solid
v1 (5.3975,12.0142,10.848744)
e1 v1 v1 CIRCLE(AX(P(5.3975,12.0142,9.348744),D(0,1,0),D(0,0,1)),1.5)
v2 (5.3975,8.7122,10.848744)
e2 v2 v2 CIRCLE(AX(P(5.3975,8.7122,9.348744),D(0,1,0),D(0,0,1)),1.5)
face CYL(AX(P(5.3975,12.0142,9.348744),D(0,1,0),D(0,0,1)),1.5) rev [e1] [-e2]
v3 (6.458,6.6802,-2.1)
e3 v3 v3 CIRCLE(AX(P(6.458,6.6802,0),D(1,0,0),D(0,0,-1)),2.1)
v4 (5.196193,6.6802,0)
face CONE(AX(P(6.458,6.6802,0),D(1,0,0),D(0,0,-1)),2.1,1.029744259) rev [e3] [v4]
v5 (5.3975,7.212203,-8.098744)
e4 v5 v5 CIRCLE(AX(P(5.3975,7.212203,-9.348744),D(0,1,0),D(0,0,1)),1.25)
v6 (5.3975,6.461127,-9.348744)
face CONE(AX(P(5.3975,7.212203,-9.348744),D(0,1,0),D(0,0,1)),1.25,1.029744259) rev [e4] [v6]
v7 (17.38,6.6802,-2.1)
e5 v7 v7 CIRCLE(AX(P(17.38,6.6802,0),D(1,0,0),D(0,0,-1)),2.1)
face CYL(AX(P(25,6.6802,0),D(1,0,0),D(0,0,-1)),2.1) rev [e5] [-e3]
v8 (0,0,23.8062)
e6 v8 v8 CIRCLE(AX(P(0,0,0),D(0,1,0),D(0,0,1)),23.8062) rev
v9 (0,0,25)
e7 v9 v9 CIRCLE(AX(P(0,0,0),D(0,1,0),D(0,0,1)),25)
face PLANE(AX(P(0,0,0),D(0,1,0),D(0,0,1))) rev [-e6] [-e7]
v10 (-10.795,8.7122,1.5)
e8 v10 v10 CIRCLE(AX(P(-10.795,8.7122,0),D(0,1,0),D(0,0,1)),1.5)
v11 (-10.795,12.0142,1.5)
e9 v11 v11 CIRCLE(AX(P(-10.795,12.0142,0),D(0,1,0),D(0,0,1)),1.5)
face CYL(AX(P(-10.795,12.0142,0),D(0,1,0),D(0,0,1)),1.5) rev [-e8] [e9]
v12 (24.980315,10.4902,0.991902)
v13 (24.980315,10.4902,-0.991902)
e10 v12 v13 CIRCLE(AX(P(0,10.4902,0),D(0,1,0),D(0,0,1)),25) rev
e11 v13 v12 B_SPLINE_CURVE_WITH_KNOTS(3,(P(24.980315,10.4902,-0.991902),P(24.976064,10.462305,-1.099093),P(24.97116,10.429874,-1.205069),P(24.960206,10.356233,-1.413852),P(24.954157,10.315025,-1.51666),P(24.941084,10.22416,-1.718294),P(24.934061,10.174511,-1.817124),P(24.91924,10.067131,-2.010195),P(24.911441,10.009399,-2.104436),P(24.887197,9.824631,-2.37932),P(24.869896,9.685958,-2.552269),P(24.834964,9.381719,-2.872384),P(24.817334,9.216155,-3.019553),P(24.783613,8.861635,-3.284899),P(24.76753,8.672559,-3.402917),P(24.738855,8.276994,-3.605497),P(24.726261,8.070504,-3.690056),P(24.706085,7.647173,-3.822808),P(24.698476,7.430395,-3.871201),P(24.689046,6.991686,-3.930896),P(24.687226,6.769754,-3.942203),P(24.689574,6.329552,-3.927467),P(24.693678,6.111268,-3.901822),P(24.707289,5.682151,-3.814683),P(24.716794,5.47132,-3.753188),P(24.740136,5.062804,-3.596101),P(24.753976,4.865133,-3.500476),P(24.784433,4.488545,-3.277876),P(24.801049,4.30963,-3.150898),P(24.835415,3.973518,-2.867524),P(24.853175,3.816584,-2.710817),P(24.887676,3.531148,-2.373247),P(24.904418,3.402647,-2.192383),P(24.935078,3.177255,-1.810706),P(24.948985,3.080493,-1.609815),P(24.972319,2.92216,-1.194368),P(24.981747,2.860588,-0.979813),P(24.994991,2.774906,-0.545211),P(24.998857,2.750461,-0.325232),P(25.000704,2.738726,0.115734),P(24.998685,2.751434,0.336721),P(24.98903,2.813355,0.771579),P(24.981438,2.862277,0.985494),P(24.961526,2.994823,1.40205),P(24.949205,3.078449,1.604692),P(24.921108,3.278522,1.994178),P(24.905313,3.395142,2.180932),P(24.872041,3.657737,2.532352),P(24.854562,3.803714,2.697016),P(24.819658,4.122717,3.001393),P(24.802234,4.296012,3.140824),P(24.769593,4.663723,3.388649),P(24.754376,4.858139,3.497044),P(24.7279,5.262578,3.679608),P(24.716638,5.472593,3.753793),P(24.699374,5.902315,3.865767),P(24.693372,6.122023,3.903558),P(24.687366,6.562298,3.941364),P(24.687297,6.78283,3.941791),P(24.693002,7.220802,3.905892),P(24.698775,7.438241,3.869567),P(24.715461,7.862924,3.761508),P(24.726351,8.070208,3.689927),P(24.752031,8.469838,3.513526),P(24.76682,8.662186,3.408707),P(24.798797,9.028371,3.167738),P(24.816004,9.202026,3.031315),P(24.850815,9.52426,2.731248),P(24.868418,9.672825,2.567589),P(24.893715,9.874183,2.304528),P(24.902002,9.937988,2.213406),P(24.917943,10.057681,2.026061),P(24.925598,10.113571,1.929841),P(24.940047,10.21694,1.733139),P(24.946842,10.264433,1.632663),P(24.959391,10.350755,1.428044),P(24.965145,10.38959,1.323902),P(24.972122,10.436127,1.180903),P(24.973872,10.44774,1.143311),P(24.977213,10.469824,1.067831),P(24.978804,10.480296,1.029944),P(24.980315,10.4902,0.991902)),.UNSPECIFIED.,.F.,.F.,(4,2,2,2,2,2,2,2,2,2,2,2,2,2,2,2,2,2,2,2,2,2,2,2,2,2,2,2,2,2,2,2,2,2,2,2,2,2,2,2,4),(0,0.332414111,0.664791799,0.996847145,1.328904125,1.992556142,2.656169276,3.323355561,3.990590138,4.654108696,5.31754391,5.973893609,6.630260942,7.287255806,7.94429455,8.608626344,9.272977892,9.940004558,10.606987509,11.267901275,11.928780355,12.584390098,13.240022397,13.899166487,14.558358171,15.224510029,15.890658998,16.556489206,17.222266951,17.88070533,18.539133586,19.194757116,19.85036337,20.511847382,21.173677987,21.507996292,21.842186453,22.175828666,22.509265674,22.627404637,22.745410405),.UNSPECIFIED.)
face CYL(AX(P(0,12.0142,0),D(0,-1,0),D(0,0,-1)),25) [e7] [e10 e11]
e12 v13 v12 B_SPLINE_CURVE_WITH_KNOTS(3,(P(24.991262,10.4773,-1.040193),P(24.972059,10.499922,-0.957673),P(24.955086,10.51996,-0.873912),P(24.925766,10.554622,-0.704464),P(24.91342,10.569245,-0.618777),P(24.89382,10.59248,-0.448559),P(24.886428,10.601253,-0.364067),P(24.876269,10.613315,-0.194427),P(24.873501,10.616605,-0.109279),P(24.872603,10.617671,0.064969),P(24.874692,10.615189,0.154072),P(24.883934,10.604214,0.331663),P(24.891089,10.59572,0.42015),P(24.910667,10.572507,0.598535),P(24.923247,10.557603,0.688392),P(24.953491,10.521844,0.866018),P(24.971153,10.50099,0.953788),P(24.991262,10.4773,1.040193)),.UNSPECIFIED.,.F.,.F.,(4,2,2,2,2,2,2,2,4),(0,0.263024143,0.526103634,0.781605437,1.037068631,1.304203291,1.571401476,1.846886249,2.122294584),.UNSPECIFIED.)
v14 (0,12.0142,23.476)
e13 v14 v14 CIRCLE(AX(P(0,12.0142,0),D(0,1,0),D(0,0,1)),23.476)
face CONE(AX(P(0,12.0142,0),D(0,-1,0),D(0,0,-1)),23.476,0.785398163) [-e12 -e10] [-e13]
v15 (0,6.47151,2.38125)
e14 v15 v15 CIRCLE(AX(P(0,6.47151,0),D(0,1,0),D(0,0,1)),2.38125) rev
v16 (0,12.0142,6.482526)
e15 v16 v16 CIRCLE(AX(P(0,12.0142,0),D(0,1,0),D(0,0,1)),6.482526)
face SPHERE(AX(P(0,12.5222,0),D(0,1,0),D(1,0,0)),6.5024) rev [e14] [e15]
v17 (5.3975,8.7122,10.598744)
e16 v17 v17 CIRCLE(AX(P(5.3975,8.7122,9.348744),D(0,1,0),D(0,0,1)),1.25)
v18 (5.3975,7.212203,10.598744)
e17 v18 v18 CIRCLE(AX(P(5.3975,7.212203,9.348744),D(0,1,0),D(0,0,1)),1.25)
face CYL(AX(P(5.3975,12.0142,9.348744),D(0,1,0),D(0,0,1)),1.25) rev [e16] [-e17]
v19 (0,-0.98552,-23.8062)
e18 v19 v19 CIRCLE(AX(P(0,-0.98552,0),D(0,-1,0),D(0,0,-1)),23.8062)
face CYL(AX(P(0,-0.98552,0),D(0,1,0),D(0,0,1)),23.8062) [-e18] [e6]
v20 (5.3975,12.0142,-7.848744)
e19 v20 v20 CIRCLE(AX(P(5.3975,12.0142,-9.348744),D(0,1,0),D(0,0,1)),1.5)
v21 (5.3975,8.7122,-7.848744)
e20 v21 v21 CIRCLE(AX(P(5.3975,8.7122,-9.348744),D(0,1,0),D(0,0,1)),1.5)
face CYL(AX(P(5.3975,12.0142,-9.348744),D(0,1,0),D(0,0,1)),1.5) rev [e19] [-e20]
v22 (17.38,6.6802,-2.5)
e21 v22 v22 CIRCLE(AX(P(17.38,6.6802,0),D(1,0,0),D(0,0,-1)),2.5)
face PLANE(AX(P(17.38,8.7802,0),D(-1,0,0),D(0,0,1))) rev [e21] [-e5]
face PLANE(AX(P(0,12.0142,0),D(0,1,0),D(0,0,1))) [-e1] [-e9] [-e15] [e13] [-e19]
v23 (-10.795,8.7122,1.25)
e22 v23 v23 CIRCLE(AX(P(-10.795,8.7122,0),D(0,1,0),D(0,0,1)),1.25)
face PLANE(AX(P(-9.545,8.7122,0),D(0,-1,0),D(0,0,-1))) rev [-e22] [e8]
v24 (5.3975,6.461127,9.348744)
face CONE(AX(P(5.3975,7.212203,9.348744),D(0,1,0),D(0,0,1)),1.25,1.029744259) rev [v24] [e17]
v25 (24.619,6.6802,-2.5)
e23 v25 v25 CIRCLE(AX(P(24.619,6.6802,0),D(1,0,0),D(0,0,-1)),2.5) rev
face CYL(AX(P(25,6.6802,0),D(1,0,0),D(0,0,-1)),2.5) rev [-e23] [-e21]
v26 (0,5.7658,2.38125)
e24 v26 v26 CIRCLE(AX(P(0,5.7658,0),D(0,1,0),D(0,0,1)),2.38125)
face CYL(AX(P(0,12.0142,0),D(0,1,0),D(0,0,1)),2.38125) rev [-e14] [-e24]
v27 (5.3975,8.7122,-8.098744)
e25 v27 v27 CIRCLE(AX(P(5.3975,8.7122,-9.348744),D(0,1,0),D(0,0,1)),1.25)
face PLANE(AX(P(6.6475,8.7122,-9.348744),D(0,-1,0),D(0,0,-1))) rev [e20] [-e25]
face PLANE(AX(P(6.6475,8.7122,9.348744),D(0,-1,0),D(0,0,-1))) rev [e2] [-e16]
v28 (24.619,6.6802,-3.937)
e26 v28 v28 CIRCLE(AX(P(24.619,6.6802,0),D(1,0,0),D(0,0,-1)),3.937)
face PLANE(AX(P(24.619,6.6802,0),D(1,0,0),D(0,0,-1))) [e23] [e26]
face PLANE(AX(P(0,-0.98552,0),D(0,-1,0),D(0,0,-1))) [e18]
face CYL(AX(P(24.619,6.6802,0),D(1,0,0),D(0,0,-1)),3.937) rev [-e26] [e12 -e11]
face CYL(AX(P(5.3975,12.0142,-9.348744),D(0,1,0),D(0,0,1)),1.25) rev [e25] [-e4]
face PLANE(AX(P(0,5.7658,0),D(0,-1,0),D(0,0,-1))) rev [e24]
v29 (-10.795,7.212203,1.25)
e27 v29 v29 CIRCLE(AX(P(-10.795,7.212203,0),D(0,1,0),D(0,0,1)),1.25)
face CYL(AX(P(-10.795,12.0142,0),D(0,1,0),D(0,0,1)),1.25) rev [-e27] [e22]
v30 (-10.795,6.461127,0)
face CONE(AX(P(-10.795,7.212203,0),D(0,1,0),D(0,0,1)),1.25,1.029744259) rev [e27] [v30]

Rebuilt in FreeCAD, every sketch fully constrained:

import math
import FreeCAD as App
import Part
import Sketcher
from FreeCAD import Vector
Q = App.Units.Quantity


def edges_at(feature, points):
    """Names of the edges that pass closest to the given points."""
    edges = feature.Shape.Edges
    near = lambda p: min(range(len(edges)), key=lambda i: edges[i].distToShape(Part.Vertex(*p))[0])
    return sorted({f"Edge{near(p) + 1}" for p in points})


def add_polygon(sketch, points):
    """Adds a closed chain of lines whose ends are joined by coincident constraints."""
    first, n = sketch.GeometryCount, len(points)
    for a, b in zip(points, points[1:] + points[:1]):
        sketch.addGeometry(Part.LineSegment(App.Vector(*a, 0), App.Vector(*b, 0)), False)
    for i in range(n):
        sketch.addConstraint(Sketcher.Constraint("Coincident", first + i, 2, first + (i + 1) % n, 1))

doc = App.newDocument("Part")
params = doc.addObject("Spreadsheet::Sheet", "Params")
for row, (alias, value) in enumerate([
    ("pad1_length", "0.473 in"),
    ("chamfer_size", "0.06 in"),
    ("sketch2_radius", "0.256 in"),
    ("groove_angle", "360 deg"),
    ("sketch3_diameter", "0.1875 in"),
    ("hole_diameter", "0.1875 in"),
    ("hole_depth", "0.246 in"),
    ("pad2_length", "0.0388 in"),
    ("hole2_diameter", "4.2 mm"),
    ("hole2_depth", "0.73 in"),
    ("hole2_cbore_diameter", "5 mm"),
    ("hole2_cbore_depth", "0.3 in"),
    ("sketch6_width", "0.13 in"),
    ("groove2_angle", "360 deg"),
    ("sketch7_diameter", "0.31 in"),
    ("pocket1_length", "0.015 in"),
], start=1):
    params.set(f"A{row}", alias)
    params.set(f"B{row}", "=" + value)
    params.setAlias(f"B{row}", alias)

body = doc.addObject("PartDesign::Body", "Body")

sketch1 = body.newObject("Sketcher::SketchObject", "Sketch")
sketch1.AttachmentSupport = (doc.getObject("XZ_Plane"), [""])
sketch1.MapMode = "FlatFace"
sketch1.addGeometry(Part.Circle(Vector(0, 0, 0), Vector(0, 0, 1), 25), False)
sketch1.addConstraint(Sketcher.Constraint("Coincident", 0, 3, -1, 1))
sketch1.addConstraint(Sketcher.Constraint("Diameter", 0, 50.0))
pad1 = body.newObject("PartDesign::Pad", "Pad")
pad1.Profile = sketch1
pad1.setExpression("Length", "Params.pad1_length")
pad1.Reversed = True
doc.recompute()

chamfer = body.newObject("PartDesign::Chamfer", "Chamfer")
chamfer.Base = (pad1, edges_at(pad1, [(0, 12.014, -25)]))
chamfer.setExpression("Size", "Params.chamfer_size")

sketch2 = body.newObject("Sketcher::SketchObject", "Sketch001")
sketch2.AttachmentSupport = (doc.getObject("XY_Plane"), [""])
sketch2.MapMode = "FlatFace"
sketch2.addGeometry(Part.LineSegment(Vector(0, 6, 0), Vector(0, 19, 0)), False)
sketch2.addGeometry(Part.ArcOfCircle(Part.Circle(Vector(0, 13, 0), Vector(0, 0, 1), 7), math.radians(90), math.radians(270)), False)
sketch2.addConstraint(Sketcher.Constraint("Coincident", 0, 1, 1, 2))
sketch2.addConstraint(Sketcher.Constraint("Coincident", 1, 1, 0, 2))
sketch2.addConstraint(Sketcher.Constraint("Vertical", 0))
sketch2.addConstraint(Sketcher.Constraint("PointOnObject", 1, 3, -2))
sketch2.addConstraint(Sketcher.Constraint("PointOnObject", 0, 1, -2))
sketch2.addConstraint(Sketcher.Constraint("Radius", 1, Q("0.256 in")))
sketch2.addConstraint(Sketcher.Constraint("DistanceY", -1, 1, 1, 3, Q("0.493 in")))
sketch2.setExpression("Constraints[5]", "Params.sketch2_radius")
groove = body.newObject("PartDesign::Groove", "Groove")
groove.Profile = sketch2
groove.ReferenceAxis = (sketch2, ["V_Axis"])
groove.setExpression("Angle", "Params.groove_angle")

sketch3 = body.newObject("Sketcher::SketchObject", "Sketch002")
sketch3.AttachmentSupport = (doc.getObject("XZ_Plane"), [""])
sketch3.MapMode = "FlatFace"
sketch3.AttachmentOffset = App.Placement(Vector(0, 0, -0.473 * 25.4), App.Rotation())
sketch3.addGeometry(Part.Circle(Vector(0, 0, 0), Vector(0, 0, 1), 2.4), False)
sketch3.addConstraint(Sketcher.Constraint("Coincident", 0, 3, -1, 1))
sketch3.addConstraint(Sketcher.Constraint("Diameter", 0, Q("0.1875 in")))
sketch3.setExpression("Constraints[1]", "Params.sketch3_diameter")
doc.recompute()
hole = body.newObject("PartDesign::Hole", "Hole")
hole.Profile = sketch3
hole.ThreadType = "None"
hole.setExpression("Diameter", "Params.hole_diameter")
hole.DepthType = "Dimension"
hole.setExpression("Depth", "Params.hole_depth")
hole.DrillPoint = "Flat"
hole.Reversed = True

sketch4 = body.newObject("Sketcher::SketchObject", "Sketch003")
sketch4.AttachmentSupport = (doc.getObject("XZ_Plane"), [""])
sketch4.MapMode = "FlatFace"
sketch4.addGeometry(Part.Circle(Vector(0, 0, 0), Vector(0, 0, 1), 24), False)
sketch4.addConstraint(Sketcher.Constraint("Coincident", 0, 3, -1, 1))
sketch4.addConstraint(Sketcher.Constraint("Diameter", 0, 47.6124))
pad2 = body.newObject("PartDesign::Pad", "Pad001")
pad2.Profile = sketch4
pad2.setExpression("Length", "Params.pad2_length")

sketch5 = body.newObject("Sketcher::SketchObject", "Sketch004")
sketch5.AttachmentSupport = (doc.getObject("YZ_Plane"), [""])
sketch5.MapMode = "FlatFace"
sketch5.AttachmentOffset = App.Placement(Vector(0, 0, 25), App.Rotation())
sketch5.addGeometry(Part.Circle(Vector(6.7, 0, 0), Vector(0, 0, 1), 2.1), False)
sketch5.addConstraint(Sketcher.Constraint("PointOnObject", 0, 3, -1))
sketch5.addConstraint(Sketcher.Constraint("Diameter", 0, 4.2))
sketch5.addConstraint(Sketcher.Constraint("DistanceX", -1, 1, 0, 3, Q("0.263 in")))
doc.recompute()
hole2 = body.newObject("PartDesign::Hole", "Hole001")
hole2.Profile = sketch5
hole2.ThreadType = "None"
hole2.setExpression("Diameter", "Params.hole2_diameter")
hole2.DepthType = "Dimension"
hole2.setExpression("Depth", "Params.hole2_depth")
hole2.DrillPoint = "Angled"
hole2.DrillPointAngle = 118
hole2.HoleCutType = "Counterbore"
hole2.setExpression("HoleCutDiameter", "Params.hole2_cbore_diameter")
hole2.setExpression("HoleCutDepth", "Params.hole2_cbore_depth")

sketch6 = body.newObject("Sketcher::SketchObject", "Sketch005")
sketch6.AttachmentSupport = (doc.getObject("YZ_Plane"), [""])
sketch6.MapMode = "FlatFace"
sketch6.AttachmentOffset = App.Placement(Vector(0, 0, -0.425 * 25.4), App.Rotation())
add_polygon(sketch6, [(6.46, 0), (12.01, 0), (12.01, 1.5), (8.71, 1.5), (8.71, 1.25), (7.21, 1.25)])
sketch6.addConstraint(Sketcher.Constraint("Horizontal", 0))
sketch6.addConstraint(Sketcher.Constraint("Vertical", 1))
sketch6.addConstraint(Sketcher.Constraint("Horizontal", 2))
sketch6.addConstraint(Sketcher.Constraint("Vertical", 3))
sketch6.addConstraint(Sketcher.Constraint("Horizontal", 4))
sketch6.addConstraint(Sketcher.Constraint("PointOnObject", 0, 2, -1))
sketch6.addConstraint(Sketcher.Constraint("Angle", 5, Q("-121 deg")))
sketch6.addConstraint(Sketcher.Constraint("DistanceX", 2, 2, 2, 1, Q("0.13 in")))
sketch6.addConstraint(Sketcher.Constraint("DistanceX", -1, 1, 0, 2, Q("0.473 in")))
sketch6.addConstraint(Sketcher.Constraint("DistanceY", 1, 1, 1, 2, 1.5))
sketch6.addConstraint(Sketcher.Constraint("DistanceY", 3, 2, 3, 1, 0.25))
sketch6.addConstraint(Sketcher.Constraint("DistanceX", 0, 1, 0, 2, 5.553073))
sketch6.setExpression("Constraints[13]", "Params.sketch6_width")
groove2 = body.newObject("PartDesign::Groove", "Groove001")
groove2.Profile = sketch6
groove2.ReferenceAxis = (sketch6, ["H_Axis"])
groove2.setExpression("Angle", "Params.groove2_angle")
doc.recompute()

polarpattern = body.newObject("PartDesign::PolarPattern", "PolarPattern")
polarpattern.Originals = [groove2]
polarpattern.Axis = (doc.getObject("Y_Axis"), [""])
polarpattern.Angle = 360
polarpattern.Occurrences = 3
body.Tip = polarpattern

sketch7 = body.newObject("Sketcher::SketchObject", "Sketch006")
sketch7.AttachmentSupport = (doc.getObject("YZ_Plane"), [""])
sketch7.MapMode = "FlatFace"
sketch7.AttachmentOffset = App.Placement(Vector(0, 0, 25), App.Rotation())
sketch7.addGeometry(Part.Circle(Vector(6.7, 0, 0), Vector(0, 0, 1), 3.9), False)
sketch7.addConstraint(Sketcher.Constraint("PointOnObject", 0, 3, -1))
sketch7.addConstraint(Sketcher.Constraint("Diameter", 0, Q("0.31 in")))
sketch7.addConstraint(Sketcher.Constraint("DistanceX", -1, 1, 0, 3, Q("0.263 in")))
sketch7.setExpression("Constraints[1]", "Params.sketch7_diameter")
pocket1 = body.newObject("PartDesign::Pocket", "Pocket")
pocket1.Profile = sketch7
pocket1.setExpression("Length", "Params.pocket1_length")

doc.recompute()
